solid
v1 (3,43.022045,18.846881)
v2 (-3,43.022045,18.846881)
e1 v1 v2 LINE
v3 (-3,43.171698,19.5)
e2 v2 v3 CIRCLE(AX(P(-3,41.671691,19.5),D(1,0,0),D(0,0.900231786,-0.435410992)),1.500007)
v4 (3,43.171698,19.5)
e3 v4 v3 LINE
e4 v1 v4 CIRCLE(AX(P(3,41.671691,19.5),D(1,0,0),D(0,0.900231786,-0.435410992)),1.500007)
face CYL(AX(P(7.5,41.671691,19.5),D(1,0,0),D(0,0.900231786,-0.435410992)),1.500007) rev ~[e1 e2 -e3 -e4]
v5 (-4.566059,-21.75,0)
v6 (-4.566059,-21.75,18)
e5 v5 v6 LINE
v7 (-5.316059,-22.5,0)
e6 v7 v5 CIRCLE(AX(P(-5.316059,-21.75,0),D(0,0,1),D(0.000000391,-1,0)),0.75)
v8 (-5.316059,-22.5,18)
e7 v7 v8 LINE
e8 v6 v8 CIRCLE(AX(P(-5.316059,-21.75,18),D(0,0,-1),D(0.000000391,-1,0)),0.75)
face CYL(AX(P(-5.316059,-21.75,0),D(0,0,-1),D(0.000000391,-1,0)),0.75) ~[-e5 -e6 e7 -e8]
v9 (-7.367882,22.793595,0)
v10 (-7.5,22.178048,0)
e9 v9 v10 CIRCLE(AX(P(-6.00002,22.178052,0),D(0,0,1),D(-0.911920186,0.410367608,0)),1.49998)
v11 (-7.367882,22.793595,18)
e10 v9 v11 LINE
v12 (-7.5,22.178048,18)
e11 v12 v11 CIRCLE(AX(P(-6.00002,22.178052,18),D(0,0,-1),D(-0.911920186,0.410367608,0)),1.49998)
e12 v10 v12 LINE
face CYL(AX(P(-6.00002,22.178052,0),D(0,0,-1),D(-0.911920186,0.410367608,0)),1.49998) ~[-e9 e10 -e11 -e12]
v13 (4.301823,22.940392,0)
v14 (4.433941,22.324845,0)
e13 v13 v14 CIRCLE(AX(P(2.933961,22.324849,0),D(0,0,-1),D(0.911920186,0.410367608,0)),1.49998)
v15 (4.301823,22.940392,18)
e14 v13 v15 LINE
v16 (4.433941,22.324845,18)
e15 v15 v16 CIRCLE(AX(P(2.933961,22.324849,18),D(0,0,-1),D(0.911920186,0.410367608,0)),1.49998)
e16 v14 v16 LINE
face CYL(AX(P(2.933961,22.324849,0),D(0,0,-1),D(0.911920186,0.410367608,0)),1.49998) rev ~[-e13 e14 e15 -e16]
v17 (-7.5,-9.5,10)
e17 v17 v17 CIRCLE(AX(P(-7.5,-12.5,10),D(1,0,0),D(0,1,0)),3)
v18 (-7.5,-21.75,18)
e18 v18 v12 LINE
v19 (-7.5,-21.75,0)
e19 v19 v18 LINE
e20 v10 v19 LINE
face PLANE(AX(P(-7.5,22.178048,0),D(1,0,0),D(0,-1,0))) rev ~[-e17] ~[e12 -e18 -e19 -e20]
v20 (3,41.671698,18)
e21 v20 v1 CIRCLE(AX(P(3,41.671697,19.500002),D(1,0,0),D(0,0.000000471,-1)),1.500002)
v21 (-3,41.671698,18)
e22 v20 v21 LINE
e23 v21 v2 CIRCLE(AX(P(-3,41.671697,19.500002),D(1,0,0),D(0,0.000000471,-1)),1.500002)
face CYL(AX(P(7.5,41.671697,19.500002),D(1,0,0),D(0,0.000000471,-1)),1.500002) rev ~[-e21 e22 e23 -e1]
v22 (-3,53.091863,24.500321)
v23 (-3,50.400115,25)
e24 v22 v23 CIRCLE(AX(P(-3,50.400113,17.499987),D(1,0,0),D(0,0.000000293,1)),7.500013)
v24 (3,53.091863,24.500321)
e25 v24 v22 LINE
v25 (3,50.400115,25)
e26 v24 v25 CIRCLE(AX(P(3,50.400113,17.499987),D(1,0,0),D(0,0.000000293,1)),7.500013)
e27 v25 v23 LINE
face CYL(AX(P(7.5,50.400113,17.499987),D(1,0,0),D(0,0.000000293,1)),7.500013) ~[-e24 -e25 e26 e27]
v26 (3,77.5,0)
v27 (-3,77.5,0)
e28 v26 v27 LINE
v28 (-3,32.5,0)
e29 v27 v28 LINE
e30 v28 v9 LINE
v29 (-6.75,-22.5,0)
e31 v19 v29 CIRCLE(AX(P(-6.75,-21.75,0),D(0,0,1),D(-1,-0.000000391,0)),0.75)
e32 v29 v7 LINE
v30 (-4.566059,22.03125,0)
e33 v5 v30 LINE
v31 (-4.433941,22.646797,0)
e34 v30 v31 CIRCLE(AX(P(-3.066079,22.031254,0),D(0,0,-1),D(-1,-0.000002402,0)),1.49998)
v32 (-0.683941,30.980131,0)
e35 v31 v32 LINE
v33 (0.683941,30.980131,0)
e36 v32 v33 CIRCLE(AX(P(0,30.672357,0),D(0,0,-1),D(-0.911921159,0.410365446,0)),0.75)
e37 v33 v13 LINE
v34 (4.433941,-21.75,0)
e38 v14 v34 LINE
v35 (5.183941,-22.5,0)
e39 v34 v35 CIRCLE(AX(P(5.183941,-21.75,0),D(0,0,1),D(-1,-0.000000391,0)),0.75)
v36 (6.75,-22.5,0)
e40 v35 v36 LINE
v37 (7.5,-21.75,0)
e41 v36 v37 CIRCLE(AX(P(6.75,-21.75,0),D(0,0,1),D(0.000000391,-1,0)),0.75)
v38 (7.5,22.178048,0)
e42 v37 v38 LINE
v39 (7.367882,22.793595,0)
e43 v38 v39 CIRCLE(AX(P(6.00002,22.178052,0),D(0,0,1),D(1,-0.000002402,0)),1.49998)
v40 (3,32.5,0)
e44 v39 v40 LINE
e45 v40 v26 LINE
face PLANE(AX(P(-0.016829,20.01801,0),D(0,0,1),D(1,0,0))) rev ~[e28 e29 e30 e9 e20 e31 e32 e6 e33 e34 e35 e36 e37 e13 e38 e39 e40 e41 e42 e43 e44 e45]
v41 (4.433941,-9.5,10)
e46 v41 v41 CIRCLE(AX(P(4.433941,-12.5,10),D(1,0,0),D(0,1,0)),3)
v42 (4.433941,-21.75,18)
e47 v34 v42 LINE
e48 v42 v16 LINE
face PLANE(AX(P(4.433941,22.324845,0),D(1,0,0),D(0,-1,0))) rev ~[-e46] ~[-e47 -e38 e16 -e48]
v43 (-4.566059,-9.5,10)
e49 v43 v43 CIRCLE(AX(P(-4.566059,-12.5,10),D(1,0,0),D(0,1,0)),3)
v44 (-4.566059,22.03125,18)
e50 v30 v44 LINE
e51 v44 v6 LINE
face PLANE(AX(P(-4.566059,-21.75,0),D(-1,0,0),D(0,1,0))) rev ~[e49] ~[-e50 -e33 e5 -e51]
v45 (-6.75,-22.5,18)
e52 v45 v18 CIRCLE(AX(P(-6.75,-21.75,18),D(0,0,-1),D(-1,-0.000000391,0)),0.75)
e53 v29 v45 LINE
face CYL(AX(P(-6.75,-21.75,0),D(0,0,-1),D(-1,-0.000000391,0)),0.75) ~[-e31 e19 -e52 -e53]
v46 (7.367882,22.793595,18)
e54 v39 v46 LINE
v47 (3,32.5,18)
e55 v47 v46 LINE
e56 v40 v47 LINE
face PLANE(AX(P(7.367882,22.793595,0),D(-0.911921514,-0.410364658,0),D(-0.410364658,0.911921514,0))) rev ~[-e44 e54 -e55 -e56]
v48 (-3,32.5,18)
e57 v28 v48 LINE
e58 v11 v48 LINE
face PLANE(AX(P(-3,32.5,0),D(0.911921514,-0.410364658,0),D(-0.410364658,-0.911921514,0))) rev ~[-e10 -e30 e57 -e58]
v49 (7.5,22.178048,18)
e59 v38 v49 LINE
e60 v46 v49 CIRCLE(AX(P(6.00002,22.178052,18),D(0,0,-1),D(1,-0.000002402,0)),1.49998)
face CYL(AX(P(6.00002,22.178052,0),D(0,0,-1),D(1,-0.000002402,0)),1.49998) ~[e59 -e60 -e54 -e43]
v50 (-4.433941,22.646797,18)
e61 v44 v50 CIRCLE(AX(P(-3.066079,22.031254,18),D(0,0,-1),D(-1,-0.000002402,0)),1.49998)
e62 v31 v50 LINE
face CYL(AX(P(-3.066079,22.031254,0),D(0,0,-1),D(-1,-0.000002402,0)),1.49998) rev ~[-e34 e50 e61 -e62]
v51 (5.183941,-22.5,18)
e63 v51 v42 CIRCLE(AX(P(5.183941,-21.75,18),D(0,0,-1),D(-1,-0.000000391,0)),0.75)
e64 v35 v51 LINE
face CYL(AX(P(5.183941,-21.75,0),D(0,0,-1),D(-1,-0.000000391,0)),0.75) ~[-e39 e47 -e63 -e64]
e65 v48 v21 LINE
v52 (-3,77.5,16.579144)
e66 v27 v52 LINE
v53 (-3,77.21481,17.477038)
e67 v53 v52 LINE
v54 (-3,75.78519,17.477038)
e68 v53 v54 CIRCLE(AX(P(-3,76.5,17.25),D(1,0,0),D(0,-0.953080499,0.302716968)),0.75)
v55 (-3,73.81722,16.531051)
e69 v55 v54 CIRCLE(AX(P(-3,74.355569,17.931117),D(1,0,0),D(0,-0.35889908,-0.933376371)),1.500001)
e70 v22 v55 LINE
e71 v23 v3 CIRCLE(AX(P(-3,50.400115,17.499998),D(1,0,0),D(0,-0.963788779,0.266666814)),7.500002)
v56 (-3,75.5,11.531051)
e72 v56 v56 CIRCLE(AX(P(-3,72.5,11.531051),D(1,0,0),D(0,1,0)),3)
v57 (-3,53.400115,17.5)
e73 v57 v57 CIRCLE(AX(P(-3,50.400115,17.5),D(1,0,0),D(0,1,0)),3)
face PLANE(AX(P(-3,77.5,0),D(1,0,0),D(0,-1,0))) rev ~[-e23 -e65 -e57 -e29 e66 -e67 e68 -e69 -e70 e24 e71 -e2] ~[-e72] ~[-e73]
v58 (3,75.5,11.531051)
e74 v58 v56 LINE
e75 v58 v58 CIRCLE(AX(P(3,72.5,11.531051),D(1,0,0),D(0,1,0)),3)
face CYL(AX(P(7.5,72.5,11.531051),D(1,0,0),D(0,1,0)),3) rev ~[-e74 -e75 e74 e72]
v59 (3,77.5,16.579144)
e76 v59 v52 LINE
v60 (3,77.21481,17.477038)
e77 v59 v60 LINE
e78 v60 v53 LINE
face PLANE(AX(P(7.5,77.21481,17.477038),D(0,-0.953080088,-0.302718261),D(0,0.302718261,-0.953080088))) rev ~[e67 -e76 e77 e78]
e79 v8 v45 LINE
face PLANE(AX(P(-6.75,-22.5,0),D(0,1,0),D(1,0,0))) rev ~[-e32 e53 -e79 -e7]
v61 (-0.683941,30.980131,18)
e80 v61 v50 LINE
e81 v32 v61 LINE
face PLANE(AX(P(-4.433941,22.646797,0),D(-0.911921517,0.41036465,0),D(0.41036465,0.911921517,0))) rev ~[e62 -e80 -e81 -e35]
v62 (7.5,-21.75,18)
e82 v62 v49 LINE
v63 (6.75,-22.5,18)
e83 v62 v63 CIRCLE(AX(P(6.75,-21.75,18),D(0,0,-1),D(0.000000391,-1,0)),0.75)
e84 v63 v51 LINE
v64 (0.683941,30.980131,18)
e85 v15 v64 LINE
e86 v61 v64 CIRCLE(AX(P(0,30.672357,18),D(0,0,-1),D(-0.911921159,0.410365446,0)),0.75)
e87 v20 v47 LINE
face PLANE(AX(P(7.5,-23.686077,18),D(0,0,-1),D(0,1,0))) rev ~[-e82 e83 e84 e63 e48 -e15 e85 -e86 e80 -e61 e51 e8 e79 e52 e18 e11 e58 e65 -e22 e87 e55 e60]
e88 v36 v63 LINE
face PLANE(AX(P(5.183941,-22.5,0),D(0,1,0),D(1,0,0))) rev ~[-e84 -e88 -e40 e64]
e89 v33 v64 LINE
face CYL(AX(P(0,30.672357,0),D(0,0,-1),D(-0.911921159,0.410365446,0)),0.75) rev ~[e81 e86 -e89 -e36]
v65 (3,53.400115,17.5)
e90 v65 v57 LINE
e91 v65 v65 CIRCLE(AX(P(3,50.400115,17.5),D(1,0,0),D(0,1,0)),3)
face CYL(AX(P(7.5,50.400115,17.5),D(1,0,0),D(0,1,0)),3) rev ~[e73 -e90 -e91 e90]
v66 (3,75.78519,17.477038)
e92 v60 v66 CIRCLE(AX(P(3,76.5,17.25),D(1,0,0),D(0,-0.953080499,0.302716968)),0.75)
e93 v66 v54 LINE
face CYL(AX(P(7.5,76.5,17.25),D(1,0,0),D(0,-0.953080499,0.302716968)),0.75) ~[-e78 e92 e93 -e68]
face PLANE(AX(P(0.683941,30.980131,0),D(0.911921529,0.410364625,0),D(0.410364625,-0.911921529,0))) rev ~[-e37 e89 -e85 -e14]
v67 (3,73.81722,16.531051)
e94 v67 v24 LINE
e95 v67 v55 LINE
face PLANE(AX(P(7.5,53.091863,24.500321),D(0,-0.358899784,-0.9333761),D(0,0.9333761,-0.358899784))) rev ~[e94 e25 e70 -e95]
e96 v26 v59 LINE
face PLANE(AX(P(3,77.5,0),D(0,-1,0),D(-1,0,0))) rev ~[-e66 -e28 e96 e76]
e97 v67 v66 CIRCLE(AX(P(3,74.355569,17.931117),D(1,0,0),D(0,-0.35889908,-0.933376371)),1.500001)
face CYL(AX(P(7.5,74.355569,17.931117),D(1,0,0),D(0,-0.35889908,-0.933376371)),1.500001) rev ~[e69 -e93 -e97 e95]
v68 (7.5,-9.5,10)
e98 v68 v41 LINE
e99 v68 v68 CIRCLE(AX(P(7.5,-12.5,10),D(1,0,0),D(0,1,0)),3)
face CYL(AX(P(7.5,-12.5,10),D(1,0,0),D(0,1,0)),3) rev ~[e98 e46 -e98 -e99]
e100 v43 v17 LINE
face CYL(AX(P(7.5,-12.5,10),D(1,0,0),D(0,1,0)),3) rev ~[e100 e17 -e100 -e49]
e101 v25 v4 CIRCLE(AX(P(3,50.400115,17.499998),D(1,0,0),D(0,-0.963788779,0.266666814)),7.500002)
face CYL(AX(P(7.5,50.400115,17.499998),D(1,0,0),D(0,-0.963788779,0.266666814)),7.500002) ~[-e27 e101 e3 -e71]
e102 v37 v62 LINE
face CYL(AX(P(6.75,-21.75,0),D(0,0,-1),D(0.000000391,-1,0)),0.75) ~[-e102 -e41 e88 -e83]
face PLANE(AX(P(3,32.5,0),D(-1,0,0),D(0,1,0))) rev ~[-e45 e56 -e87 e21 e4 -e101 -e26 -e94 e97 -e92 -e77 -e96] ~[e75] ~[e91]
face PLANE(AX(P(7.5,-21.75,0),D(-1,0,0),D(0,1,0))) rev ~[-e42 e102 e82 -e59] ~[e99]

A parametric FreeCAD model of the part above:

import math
import FreeCAD as App
import Part
import Sketcher

V = App.Vector

doc = App.newDocument("Part")
body = doc.addObject("PartDesign::Body", "Body")

# Sketch on XY plane
sketch1 = body.newObject("Sketcher::SketchObject", "Sketch")
sketch1.AttachmentSupport = (doc.getObject("XY_Plane"), [""])
sketch1.MapMode = "FlatFace"
sketch1.addGeometry([
    Part.LineSegment(V(5.183941, -22.5, 0), V(6.75, -22.5, 0)),  # 0
    Part.ArcOfCircle(Part.Circle(V(6.75, -21.75, 0), V(0, 0, 1), 0.75), math.radians(-89.999978), math.radians(-0.000022)),  # 1
    Part.LineSegment(V(7.5, -21.75, 0), V(7.5, 22.178048, 0)),  # 2
    Part.ArcOfCircle(Part.Circle(V(6.00002, 22.178052, 0), V(0, 0, 1), 1.49998), math.radians(-0.000138), math.radians(24.227929)),  # 3
    Part.LineSegment(V(7.367882, 22.793595, 0), V(3, 32.5, 0)),  # 4
    Part.LineSegment(V(3, 32.5, 0), V(3, 77.5, 0)),  # 5
    Part.LineSegment(V(3, 77.5, 0), V(-3, 77.5, 0)),  # 6
    Part.LineSegment(V(-3, 77.5, 0), V(-3, 32.5, 0)),  # 7
    Part.LineSegment(V(-3, 32.5, 0), V(-7.367882, 22.793595, 0)),  # 8
    Part.ArcOfCircle(Part.Circle(V(-6.00002, 22.178052, 0), V(0, 0, 1), 1.49998), math.radians(155.772071), math.radians(180.000138)),  # 9
    Part.LineSegment(V(-7.5, 22.178048, 0), V(-7.5, -21.75, 0)),  # 10
    Part.ArcOfCircle(Part.Circle(V(-6.75, -21.75, 0), V(0, 0, 1), 0.75), math.radians(-179.999978), math.radians(-90.000022)),  # 11
    Part.LineSegment(V(-6.75, -22.5, 0), V(-5.316059, -22.5, 0)),  # 12
    Part.ArcOfCircle(Part.Circle(V(-5.316059, -21.75, 0), V(0, 0, 1), 0.75), math.radians(-89.999978), math.radians(-0.000022)),  # 13
    Part.LineSegment(V(-4.566059, -21.75, 0), V(-4.566059, 22.03125, 0)),  # 14
    Part.ArcOfCircle(Part.Circle(V(-3.066079, 22.031254, 0), V(0, 0, 1), 1.49998), math.radians(155.772071), math.radians(180.000138)),  # 15
    Part.LineSegment(V(-4.433941, 22.646797, 0), V(-0.683941, 30.980131, 0)),  # 16
    Part.ArcOfCircle(Part.Circle(V(0, 30.672357, 0), V(0, 0, 1), 0.75), math.radians(24.227794), math.radians(155.772206)),  # 17
    Part.LineSegment(V(0.683941, 30.980131, 0), V(4.301823, 22.940392, 0)),  # 18
    Part.ArcOfCircle(Part.Circle(V(2.933961, 22.324849, 0), V(0, 0, 1), 1.49998), math.radians(-0.000138), math.radians(24.227929)),  # 19
    Part.LineSegment(V(4.433941, 22.324845, 0), V(4.433941, -21.75, 0)),  # 20
    Part.ArcOfCircle(Part.Circle(V(5.183941, -21.75, 0), V(0, 0, 1), 0.75), math.radians(-179.999978), math.radians(-90.000022)),  # 21
], False)
sketch1.addConstraint([
    Sketcher.Constraint("Tangent", 0, 2, 1, 1),
    Sketcher.Constraint("Tangent", 1, 2, 2, 1),
    Sketcher.Constraint("Coincident", 2, 2, 3, 1),
    Sketcher.Constraint("Coincident", 3, 2, 4, 1),
    Sketcher.Constraint("Coincident", 4, 2, 5, 1),
    Sketcher.Constraint("Coincident", 5, 2, 6, 1),
    Sketcher.Constraint("Coincident", 6, 2, 7, 1),
    Sketcher.Constraint("Coincident", 7, 2, 8, 1),
    Sketcher.Constraint("Coincident", 8, 2, 9, 1),
    Sketcher.Constraint("Coincident", 9, 2, 10, 1),
    Sketcher.Constraint("Tangent", 10, 2, 11, 1),
    Sketcher.Constraint("Tangent", 11, 2, 12, 1),
    Sketcher.Constraint("Tangent", 12, 2, 13, 1),
    Sketcher.Constraint("Tangent", 13, 2, 14, 1),
    Sketcher.Constraint("Coincident", 14, 2, 15, 2),
    Sketcher.Constraint("Coincident", 15, 1, 16, 1),
    Sketcher.Constraint("Tangent", 16, 2, 17, 2),
    Sketcher.Constraint("Tangent", 17, 1, 18, 1),
    Sketcher.Constraint("Coincident", 18, 2, 19, 2),
    Sketcher.Constraint("Coincident", 19, 1, 20, 1),
    Sketcher.Constraint("Tangent", 20, 2, 21, 1),
    Sketcher.Constraint("Tangent", 21, 2, 0, 1),
    Sketcher.Constraint("Horizontal", 0),
    Sketcher.Constraint("Vertical", 2),
    Sketcher.Constraint("Vertical", 5),
    Sketcher.Constraint("Horizontal", 6),
    Sketcher.Constraint("Vertical", 7),
    Sketcher.Constraint("Vertical", 10),
    Sketcher.Constraint("Horizontal", 12),
    Sketcher.Constraint("Vertical", 14),
    Sketcher.Constraint("Vertical", 20),
    Sketcher.Constraint("Equal", 3, 9),
    Sketcher.Constraint("Equal", 1, 11),
    Sketcher.Constraint("Equal", 11, 13),
    Sketcher.Constraint("Equal", 9, 15),
    Sketcher.Constraint("Equal", 13, 17),
    Sketcher.Constraint("Equal", 15, 19),
    Sketcher.Constraint("Equal", 17, 21),
    Sketcher.Constraint("Symmetric", 3, 3, 9, 3, -2),
    Sketcher.Constraint("Symmetric", 4, 2, 7, 2, -2),
    Sketcher.Constraint("Symmetric", 16, 2, 17, 1, -2),
    Sketcher.Constraint("Parallel", 8, 16),
    Sketcher.Constraint("Horizontal", 1, 3, 11, 3),
    Sketcher.Constraint("Horizontal", 3, 2, 8, 2),
    Sketcher.Constraint("Horizontal", 2, 2, 9, 2),
    Sketcher.Constraint("DistanceX", 6, 2, 6, 1, 6.0),
    Sketcher.Constraint("DistanceY", 5, 1, 5, 2, 45.0),
    Sketcher.Constraint("Radius", 1, 0.75),
    Sketcher.Constraint("DistanceX", 13, 2, 20, 2, 9.0),
    Sketcher.Constraint("DistanceY", 0, 2, -1, 1, 22.5),
    Sketcher.Constraint("DistanceX", -1, 1, 1, 2, 7.5),
    Sketcher.Constraint("DistanceY", -1, 1, 4, 2, 32.5),
    Sketcher.Constraint("Radius", 3, 1.49998),
    Sketcher.Constraint("DistanceX", 15, 1, 16, 2, 3.75),
    Sketcher.Constraint("DistanceX", 0, 1, 0, 2, 1.566059),
    Sketcher.Constraint("DistanceY", 2, 1, 2, 2, 43.928048),
    Sketcher.Constraint("DistanceY", 14, 1, 14, 2, 43.78125),
    Sketcher.Constraint("DistanceY", 15, 3, 9, 3, 0.146798),
    Sketcher.Constraint("DistanceY", 2, 2, 19, 3, 0.146801),
    Sketcher.Constraint("DistanceX", 15, 3, 18, 2, 7.367902),
    Sketcher.Constraint("DistanceY", 20, 2, 20, 1, 44.074845),
    Sketcher.Constraint("DistanceX", 8, 2, -1, 1, 7.367882),
])
pad1 = body.newObject("PartDesign::Pad", "Pad")
pad1.Profile = sketch1
pad1.Length = 25

# Sketch on YZ plane
sketch2 = body.newObject("Sketcher::SketchObject", "Sketch001")
sketch2.AttachmentSupport = (doc.getObject("YZ_Plane"), [""])
sketch2.MapMode = "FlatFace"
sketch2.AttachmentOffset = App.Placement(V(0, 0, 7.5), App.Rotation())
sketch2.addGeometry([
    Part.LineSegment(V(77.5, 25, 0), V(50.400115, 25, 0)),  # 0
    Part.ArcOfCircle(Part.Circle(V(50.400113, 17.499987, 0), V(0, 0, 1), 7.500013), math.radians(68.967381), math.radians(89.999983)),  # 1
    Part.LineSegment(V(53.091863, 24.500321, 0), V(73.81722, 16.531051, 0)),  # 2
    Part.ArcOfCircle(Part.Circle(V(74.355569, 17.931117, 0), V(0, 0, 1), 1.500001), math.radians(-111.0326), math.radians(-17.620978)),  # 3
    Part.ArcOfCircle(Part.Circle(V(76.5, 17.25, 0), V(0, 0, 1), 0.75), math.radians(17.620864), math.radians(162.379136)),  # 4
    Part.LineSegment(V(77.21481, 17.477038, 0), V(77.5, 16.579144, 0)),  # 5
    Part.LineSegment(V(77.5, 16.579144, 0), V(77.5, 25, 0)),  # 6
    Part.LineSegment(V(-23.686077, 25, 0), V(-23.686077, 18, 0)),  # 7
    Part.LineSegment(V(-23.686077, 18, 0), V(41.671698, 18, 0)),  # 8
    Part.ArcOfCircle(Part.Circle(V(41.671697, 19.500002, 0), V(0, 0, 1), 1.500002), math.radians(-89.999973), math.radians(-25.811603)),  # 9
    Part.ArcOfCircle(Part.Circle(V(41.671691, 19.5, 0), V(0, 0, 1), 1.500007), math.radians(-25.811449), math.radians(-0.000017)),  # 10
    Part.ArcOfCircle(Part.Circle(V(50.400115, 17.499998, 0), V(0, 0, 1), 7.500002), math.radians(90.000002), math.radians(164.533981)),  # 11
    Part.LineSegment(V(50.400115, 25, 0), V(-23.686077, 25, 0)),  # 12
    Part.Circle(V(50.400115, 17.5, 0), V(0, 0, 1), 3),  # 13
    Part.Circle(V(-12.5, 10, 0), V(0, 0, 1), 3),  # 14
    Part.Circle(V(72.5, 11.531051, 0), V(0, 0, 1), 3),  # 15
], False)
sketch2.addConstraint([
    Sketcher.Constraint("Tangent", 0, 2, 1, 2),
    Sketcher.Constraint("Tangent", 1, 1, 2, 1),
    Sketcher.Constraint("Tangent", 2, 2, 3, 1),
    Sketcher.Constraint("Tangent", 3, 2, 4, 2),
    Sketcher.Constraint("Tangent", 4, 1, 5, 1),
    Sketcher.Constraint("Coincident", 5, 2, 6, 1),
    Sketcher.Constraint("Coincident", 6, 2, 0, 1),
    Sketcher.Constraint("Coincident", 7, 2, 8, 1),
    Sketcher.Constraint("Tangent", 8, 2, 9, 1),
    Sketcher.Constraint("Coincident", 9, 2, 10, 1),
    Sketcher.Constraint("Coincident", 10, 2, 11, 2),
    Sketcher.Constraint("Tangent", 11, 1, 12, 1),
    Sketcher.Constraint("Coincident", 12, 2, 7, 1),
    Sketcher.Constraint("Horizontal", 0),
    Sketcher.Constraint("Vertical", 6),
    Sketcher.Constraint("Vertical", 7),
    Sketcher.Constraint("Horizontal", 8),
    Sketcher.Constraint("Horizontal", 12),
    Sketcher.Constraint("Coincident", 10, 3, 9, 3),
    Sketcher.Constraint("Coincident", 13, 3, 11, 3),
    Sketcher.Constraint("Coincident", 11, 1, 0, 2),
    Sketcher.Constraint("Equal", 3, 9),
    Sketcher.Constraint("Equal", 13, 14),
    Sketcher.Constraint("Equal", 14, 15),
    Sketcher.Constraint("Horizontal", 3, 2, 4, 1),
    Sketcher.Constraint("Horizontal", 9, 3, 10, 2),
    Sketcher.Constraint("Diameter", 13, 6.0),
    Sketcher.Constraint("Radius", 3, 1.500001),
    Sketcher.Constraint("Radius", 11, 7.500002),
    Sketcher.Constraint("DistanceY", 7, 2, 7, 1, 7.0),
    Sketcher.Constraint("Radius", 4, 0.75),
    Sketcher.Constraint("DistanceY", -1, 1, 14, 3, 10.0),
    Sketcher.Constraint("DistanceY", -1, 1, 0, 2, 25.0),
    Sketcher.Constraint("DistanceX", 15, 3, 4, 3, 4.0),
    Sketcher.Constraint("DistanceY", 15, 3, 2, 2, 5.0),
    Sketcher.Constraint("DistanceX", 4, 3, 5, 2, 1.0),
    Sketcher.Constraint("DistanceX", -1, 1, 4, 3, 76.5),
    Sketcher.Constraint("DistanceX", 14, 3, -1, 1, 12.5),
    Sketcher.Constraint("DistanceY", -1, 1, 4, 3, 17.25),
    Sketcher.Constraint("Radius", 1, 7.500013),
    Sketcher.Constraint("DistanceX", 12, 2, 12, 1, 74.086192),
    Sketcher.Constraint("DistanceX", 0, 2, 0, 1, 27.099885),
    Sketcher.Constraint("DistanceY", 6, 1, 6, 2, 8.420856),
    Sketcher.Constraint("DistanceY", -1, 1, 9, 2, 18.846881),
])
pocket1 = body.newObject("PartDesign::Pocket", "Pocket")
pocket1.Profile = sketch2
pocket1.Length = 15

doc.recompute()
